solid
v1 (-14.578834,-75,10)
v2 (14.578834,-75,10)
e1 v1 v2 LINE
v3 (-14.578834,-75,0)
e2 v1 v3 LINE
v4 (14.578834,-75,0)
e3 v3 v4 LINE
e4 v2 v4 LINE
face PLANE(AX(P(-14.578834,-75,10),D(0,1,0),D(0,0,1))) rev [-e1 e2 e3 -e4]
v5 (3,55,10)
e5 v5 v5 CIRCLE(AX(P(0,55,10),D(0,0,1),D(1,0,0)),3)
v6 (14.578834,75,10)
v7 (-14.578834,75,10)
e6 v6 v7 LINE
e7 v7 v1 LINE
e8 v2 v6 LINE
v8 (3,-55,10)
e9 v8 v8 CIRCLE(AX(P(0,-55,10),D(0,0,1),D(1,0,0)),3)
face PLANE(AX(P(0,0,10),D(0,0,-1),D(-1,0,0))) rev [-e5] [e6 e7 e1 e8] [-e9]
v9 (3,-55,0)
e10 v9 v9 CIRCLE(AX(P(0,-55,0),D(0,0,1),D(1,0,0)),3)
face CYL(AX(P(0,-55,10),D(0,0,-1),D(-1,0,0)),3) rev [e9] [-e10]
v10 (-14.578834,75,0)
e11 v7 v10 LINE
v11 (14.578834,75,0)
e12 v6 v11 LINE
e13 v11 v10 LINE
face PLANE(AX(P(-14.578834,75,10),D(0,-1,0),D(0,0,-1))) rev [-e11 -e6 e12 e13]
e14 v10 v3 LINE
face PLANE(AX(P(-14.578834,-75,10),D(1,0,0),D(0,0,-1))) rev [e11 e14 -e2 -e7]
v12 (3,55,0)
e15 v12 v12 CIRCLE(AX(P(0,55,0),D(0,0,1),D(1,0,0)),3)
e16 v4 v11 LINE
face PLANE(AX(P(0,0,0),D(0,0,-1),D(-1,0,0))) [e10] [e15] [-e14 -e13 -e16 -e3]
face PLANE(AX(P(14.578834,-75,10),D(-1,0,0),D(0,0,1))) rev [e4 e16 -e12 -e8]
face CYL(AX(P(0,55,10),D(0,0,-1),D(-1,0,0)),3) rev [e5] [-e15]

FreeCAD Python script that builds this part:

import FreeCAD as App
import Part
import Sketcher
from FreeCAD import Vector


def add_polygon(sketch, points):
    """Adds a closed chain of lines whose ends are joined by coincident constraints."""
    first, n = sketch.GeometryCount, len(points)
    for a, b in zip(points, points[1:] + points[:1]):
        sketch.addGeometry(Part.LineSegment(App.Vector(*a, 0), App.Vector(*b, 0)), False)
    for i in range(n):
        sketch.addConstraint(Sketcher.Constraint("Coincident", first + i, 2, first + (i + 1) % n, 1))

doc = App.newDocument("Part")
params = doc.addObject("Spreadsheet::Sheet", "Params")
for row, (alias, value) in enumerate([
    ("sketch1_diameter", "6 mm"),
    ("sketch1_height", "150 mm"),
    ("pad1_length", "10 mm"),
], start=1):
    params.set(f"A{row}", alias)
    params.set(f"B{row}", "=" + value)
    params.setAlias(f"B{row}", alias)

body = doc.addObject("PartDesign::Body", "Body")

sketch1 = doc.addObject("Sketcher::SketchObject", "Sketch")
body.addObject(sketch1)
sketch1.AttachmentSupport = (doc.XY_Plane, [""])
sketch1.MapMode = "FlatFace"
add_polygon(sketch1, [(-14.578834, 75), (-14.578834, -75), (14.578834, -75), (14.578834, 75)])
sketch1.addGeometry(Part.Circle(Vector(0, -55, 0), Vector(0, 0, 1), 3), False)
sketch1.addGeometry(Part.Circle(Vector(0, 55, 0), Vector(0, 0, 1), 3), False)
sketch1.addConstraint([
    Sketcher.Constraint("Vertical", 0),
    Sketcher.Constraint("Horizontal", 1),
    Sketcher.Constraint("Vertical", 2),
    Sketcher.Constraint("Horizontal", 3),
    Sketcher.Constraint("Equal", 4, 5),
    Sketcher.Constraint("Symmetric", 4, 3, 5, 3, -1, 1),
    Sketcher.Constraint("Symmetric", 0, 2, 2, 2, -1, 1),
    Sketcher.Constraint("PointOnObject", 4, 3, -2),
    Sketcher.Constraint("Diameter", 4, 6.0),
    Sketcher.Constraint("DistanceY", 0, 2, 0, 1, 150.0),
    Sketcher.Constraint("DistanceY", 4, 3, -1, 1, 55.0),
    Sketcher.Constraint("DistanceX", 1, 1, 1, 2, 29.157667),
])
sketch1.setExpression("Constraints[12]", "Params.sketch1_diameter")
sketch1.setExpression("Constraints[13]", "Params.sketch1_height")
pad1 = doc.addObject("PartDesign::Pad", "Pad")
body.addObject(pad1)
pad1.Profile = sketch1
pad1.setExpression("Length", "Params.pad1_length")

doc.recompute()
